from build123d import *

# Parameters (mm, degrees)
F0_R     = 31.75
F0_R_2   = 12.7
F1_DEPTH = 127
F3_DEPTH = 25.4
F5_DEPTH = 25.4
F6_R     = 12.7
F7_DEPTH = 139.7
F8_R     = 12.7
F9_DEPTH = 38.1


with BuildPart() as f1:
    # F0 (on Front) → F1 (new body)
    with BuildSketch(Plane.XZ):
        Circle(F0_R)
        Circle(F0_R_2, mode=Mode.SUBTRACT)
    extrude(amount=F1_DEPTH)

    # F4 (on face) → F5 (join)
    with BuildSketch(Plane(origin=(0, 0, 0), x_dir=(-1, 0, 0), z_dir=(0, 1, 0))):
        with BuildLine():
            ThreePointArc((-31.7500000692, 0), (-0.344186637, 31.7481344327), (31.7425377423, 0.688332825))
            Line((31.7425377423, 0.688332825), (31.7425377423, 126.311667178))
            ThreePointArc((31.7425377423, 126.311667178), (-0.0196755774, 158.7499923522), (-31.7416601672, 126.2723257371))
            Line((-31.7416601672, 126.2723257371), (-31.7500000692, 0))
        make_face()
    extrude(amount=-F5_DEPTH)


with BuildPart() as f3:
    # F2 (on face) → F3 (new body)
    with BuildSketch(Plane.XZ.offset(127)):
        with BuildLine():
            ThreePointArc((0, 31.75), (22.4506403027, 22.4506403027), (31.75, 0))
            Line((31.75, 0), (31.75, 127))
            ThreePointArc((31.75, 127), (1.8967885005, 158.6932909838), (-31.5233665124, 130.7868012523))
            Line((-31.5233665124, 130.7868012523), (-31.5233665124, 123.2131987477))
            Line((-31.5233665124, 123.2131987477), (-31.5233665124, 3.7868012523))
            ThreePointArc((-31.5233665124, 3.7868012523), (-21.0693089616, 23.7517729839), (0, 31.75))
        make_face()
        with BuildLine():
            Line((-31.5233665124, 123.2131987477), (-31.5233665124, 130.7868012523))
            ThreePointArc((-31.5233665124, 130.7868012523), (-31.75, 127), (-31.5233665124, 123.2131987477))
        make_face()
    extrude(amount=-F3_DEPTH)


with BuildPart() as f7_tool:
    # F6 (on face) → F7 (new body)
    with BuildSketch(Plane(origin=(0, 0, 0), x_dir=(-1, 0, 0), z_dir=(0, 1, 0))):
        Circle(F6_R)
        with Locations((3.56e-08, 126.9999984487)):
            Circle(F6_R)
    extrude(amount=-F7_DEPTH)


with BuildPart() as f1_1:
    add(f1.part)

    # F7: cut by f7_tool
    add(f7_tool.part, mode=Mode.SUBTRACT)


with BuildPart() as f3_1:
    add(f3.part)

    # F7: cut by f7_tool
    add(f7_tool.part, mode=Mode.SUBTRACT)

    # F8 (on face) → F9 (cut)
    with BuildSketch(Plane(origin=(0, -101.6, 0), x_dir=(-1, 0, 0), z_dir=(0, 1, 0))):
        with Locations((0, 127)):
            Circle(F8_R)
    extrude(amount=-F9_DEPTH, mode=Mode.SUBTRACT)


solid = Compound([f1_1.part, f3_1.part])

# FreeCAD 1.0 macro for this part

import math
import FreeCAD as App
import Part
import Sketcher

V = App.Vector
Q = App.Units.Quantity

doc = App.newDocument("Part")
body = doc.addObject("PartDesign::Body", "Body")

sketch1 = body.newObject("Sketcher::SketchObject", "Sketch")
sketch1.AttachmentSupport = (doc.getObject("XZ_Plane"), [""])
sketch1.MapMode = "FlatFace"
sketch1.addGeometry(Part.Circle(V(0, 0, 0), V(0, 0, 1), 32), False)
sketch1.addGeometry(Part.Circle(V(0, 0, 0), V(0, 0, 1), 13), False)
sketch1.addConstraint(Sketcher.Constraint("Coincident", 0, 3, -1, 1))
sketch1.addConstraint(Sketcher.Constraint("Coincident", 1, 3, -1, 1))
sketch1.addConstraint(Sketcher.Constraint("Diameter", 1, Q("1 in")))
sketch1.addConstraint(Sketcher.Constraint("Diameter", 0, Q("2.5 in")))
pad1 = body.newObject("PartDesign::Pad", "Pad")
pad1.Profile = sketch1
pad1.Length = Q("5 in")

sketch2 = body.newObject("Sketcher::SketchObject", "Sketch001")
sketch2.AttachmentSupport = (doc.getObject("XZ_Plane"), [""])
sketch2.MapMode = "FlatFace"
sketch2.addGeometry(Part.ArcOfCircle(Part.Circle(V(0, 0, 0), V(0, 0, 1), 32), math.radians(0), math.radians(179)), False)
sketch2.addGeometry(Part.LineSegment(V(-32, 1, 0), V(-32, 126, 0)), False)
sketch2.addGeometry(Part.ArcOfCircle(Part.Circle(V(0, 127, 0), V(0, 0, 1), 32), math.radians(-1), math.radians(181)), False)
sketch2.addGeometry(Part.LineSegment(V(32, 126, 0), V(32, 0, 0)), False)
sketch2.addConstraint(Sketcher.Constraint("Coincident", 0, 2, 1, 1))
sketch2.addConstraint(Sketcher.Constraint("Coincident", 1, 2, 2, 2))
sketch2.addConstraint(Sketcher.Constraint("Coincident", 2, 1, 3, 1))
sketch2.addConstraint(Sketcher.Constraint("Coincident", 3, 2, 0, 1))
sketch2.addConstraint(Sketcher.Constraint("Vertical", 1))
sketch2.addConstraint(Sketcher.Constraint("Coincident", 0, 3, -1, 1))
sketch2.addConstraint(Sketcher.Constraint("Equal", 0, 2))
sketch2.addConstraint(Sketcher.Constraint("PointOnObject", 2, 3, -2))
sketch2.addConstraint(Sketcher.Constraint("PointOnObject", 3, 2, -1))
sketch2.addConstraint(Sketcher.Constraint("Radius", 0, Q("1.25 in")))
sketch2.addConstraint(Sketcher.Constraint("DistanceY", -1, 1, 2, 3, Q("4.9999999 in")))
sketch2.addConstraint(Sketcher.Constraint("DistanceY", 1, 1, 1, 2, 125.623334))
sketch2.addConstraint(Sketcher.Constraint("DistanceX", -1, 1, 2, 1, 31.74166))
pad2 = body.newObject("PartDesign::Pad", "Pad001")
pad2.Profile = sketch2
pad2.Length = Q("1 in")
body2 = doc.addObject("PartDesign::Body", "Body001")

sketch3 = body2.newObject("Sketcher::SketchObject", "Sketch002")
sketch3.AttachmentSupport = (doc.getObject("XZ_Plane001"), [""])
sketch3.MapMode = "FlatFace"
sketch3.AttachmentOffset = App.Placement(V(0, 0, 5 * 25.4), App.Rotation())
sketch3.addGeometry(Part.LineSegment(V(32, 0, 0), V(32, 127, 0)), False)
sketch3.addGeometry(Part.ArcOfCircle(Part.Circle(V(0, 127, 0), V(0, 0, 1), 32), math.radians(0), math.radians(173)), False)
sketch3.addGeometry(Part.ArcOfCircle(Part.Circle(V(0, 127, 0), V(0, 0, 1), 32), math.radians(173.15), math.radians(186.85)), False)
sketch3.addGeometry(Part.LineSegment(V(-32, 123, 0), V(-32, 4, 0)), False)
sketch3.addGeometry(Part.ArcOfCircle(Part.Circle(V(0, 0, 0), V(0, 0, 1), 32), math.radians(0), math.radians(173)), False)
sketch3.addConstraint(Sketcher.Constraint("Tangent", 0, 2, 1, 1))
sketch3.addConstraint(Sketcher.Constraint("Tangent", 1, 2, 2, 1))
sketch3.addConstraint(Sketcher.Constraint("Coincident", 2, 2, 3, 1))
sketch3.addConstraint(Sketcher.Constraint("Coincident", 3, 2, 4, 2))
sketch3.addConstraint(Sketcher.Constraint("Tangent", 4, 1, 0, 1))
sketch3.addConstraint(Sketcher.Constraint("Vertical", 0))
sketch3.addConstraint(Sketcher.Constraint("Vertical", 3))
sketch3.addConstraint(Sketcher.Constraint("Coincident", 4, 3, -1, 1))
sketch3.addConstraint(Sketcher.Constraint("Equal", 1, 2))
sketch3.addConstraint(Sketcher.Constraint("Equal", 2, 4))
sketch3.addConstraint(Sketcher.Constraint("Vertical", 1, 2, 2, 2))
sketch3.addConstraint(Sketcher.Constraint("DistanceY", 0, 1, 0, 2, Q("5 in")))
sketch3.addConstraint(Sketcher.Constraint("Radius", 1, Q("1.25 in")))
sketch3.addConstraint(Sketcher.Constraint("DistanceY", -1, 1, 1, 2, 130.786801))
pad3 = body2.newObject("PartDesign::Pad", "Pad002")
pad3.Profile = sketch3
pad3.Length = Q("1 in")
pad3.Reversed = True
body3 = doc.addObject("PartDesign::Body", "Body002")
body3.AllowCompound = True

sketch4 = body3.newObject("Sketcher::SketchObject", "Sketch003")
sketch4.AttachmentSupport = (doc.getObject("XZ_Plane002"), [""])
sketch4.MapMode = "FlatFace"
sketch4.addGeometry(Part.Circle(V(0, 0, 0), V(0, 0, 1), 13), False)
sketch4.addGeometry(Part.Circle(V(0, 127, 0), V(0, 0, 1), 13), False)
sketch4.addConstraint(Sketcher.Constraint("Coincident", 0, 3, -1, 1))
sketch4.addConstraint(Sketcher.Constraint("Equal", 0, 1))
sketch4.addConstraint(Sketcher.Constraint("PointOnObject", 1, 3, -2))
sketch4.addConstraint(Sketcher.Constraint("Diameter", 0, Q("1 in")))
sketch4.addConstraint(Sketcher.Constraint("DistanceY", -1, 1, 1, 3, Q("4.9999999 in")))
pad4 = body3.newObject("PartDesign::Pad", "Pad003")
pad4.Profile = sketch4
pad4.Length = Q("5.5 in")
doc.recompute()

body4 = doc.addObject("PartDesign::Body", "Body003")
body4.BaseFeature = body3
boolean = body.newObject("PartDesign::Boolean", "Boolean")
boolean.Type = "Cut"
boolean.addObjects([body4])
doc.recompute()

boolean2 = body2.newObject("PartDesign::Boolean", "Boolean001")
boolean2.Type = "Cut"
boolean2.addObjects([body3])

sketch5 = body2.newObject("Sketcher::SketchObject", "Sketch004")
sketch5.AttachmentSupport = (doc.getObject("XZ_Plane001"), [""])
sketch5.MapMode = "FlatFace"
sketch5.AttachmentOffset = App.Placement(V(0, 0, 4 * 25.4), App.Rotation())
sketch5.addGeometry(Part.Circle(V(0, 127, 0), V(0, 0, 1), 13), False)
sketch5.addConstraint(Sketcher.Constraint("PointOnObject", 0, 3, -2))
sketch5.addConstraint(Sketcher.Constraint("Diameter", 0, Q("1 in")))
sketch5.addConstraint(Sketcher.Constraint("DistanceY", -1, 1, 0, 3, Q("5 in")))
pocket1 = body2.newObject("PartDesign::Pocket", "Pocket")
pocket1.Profile = sketch5
pocket1.Length = Q("1.5 in")
pocket1.Reversed = True

doc.recompute()
